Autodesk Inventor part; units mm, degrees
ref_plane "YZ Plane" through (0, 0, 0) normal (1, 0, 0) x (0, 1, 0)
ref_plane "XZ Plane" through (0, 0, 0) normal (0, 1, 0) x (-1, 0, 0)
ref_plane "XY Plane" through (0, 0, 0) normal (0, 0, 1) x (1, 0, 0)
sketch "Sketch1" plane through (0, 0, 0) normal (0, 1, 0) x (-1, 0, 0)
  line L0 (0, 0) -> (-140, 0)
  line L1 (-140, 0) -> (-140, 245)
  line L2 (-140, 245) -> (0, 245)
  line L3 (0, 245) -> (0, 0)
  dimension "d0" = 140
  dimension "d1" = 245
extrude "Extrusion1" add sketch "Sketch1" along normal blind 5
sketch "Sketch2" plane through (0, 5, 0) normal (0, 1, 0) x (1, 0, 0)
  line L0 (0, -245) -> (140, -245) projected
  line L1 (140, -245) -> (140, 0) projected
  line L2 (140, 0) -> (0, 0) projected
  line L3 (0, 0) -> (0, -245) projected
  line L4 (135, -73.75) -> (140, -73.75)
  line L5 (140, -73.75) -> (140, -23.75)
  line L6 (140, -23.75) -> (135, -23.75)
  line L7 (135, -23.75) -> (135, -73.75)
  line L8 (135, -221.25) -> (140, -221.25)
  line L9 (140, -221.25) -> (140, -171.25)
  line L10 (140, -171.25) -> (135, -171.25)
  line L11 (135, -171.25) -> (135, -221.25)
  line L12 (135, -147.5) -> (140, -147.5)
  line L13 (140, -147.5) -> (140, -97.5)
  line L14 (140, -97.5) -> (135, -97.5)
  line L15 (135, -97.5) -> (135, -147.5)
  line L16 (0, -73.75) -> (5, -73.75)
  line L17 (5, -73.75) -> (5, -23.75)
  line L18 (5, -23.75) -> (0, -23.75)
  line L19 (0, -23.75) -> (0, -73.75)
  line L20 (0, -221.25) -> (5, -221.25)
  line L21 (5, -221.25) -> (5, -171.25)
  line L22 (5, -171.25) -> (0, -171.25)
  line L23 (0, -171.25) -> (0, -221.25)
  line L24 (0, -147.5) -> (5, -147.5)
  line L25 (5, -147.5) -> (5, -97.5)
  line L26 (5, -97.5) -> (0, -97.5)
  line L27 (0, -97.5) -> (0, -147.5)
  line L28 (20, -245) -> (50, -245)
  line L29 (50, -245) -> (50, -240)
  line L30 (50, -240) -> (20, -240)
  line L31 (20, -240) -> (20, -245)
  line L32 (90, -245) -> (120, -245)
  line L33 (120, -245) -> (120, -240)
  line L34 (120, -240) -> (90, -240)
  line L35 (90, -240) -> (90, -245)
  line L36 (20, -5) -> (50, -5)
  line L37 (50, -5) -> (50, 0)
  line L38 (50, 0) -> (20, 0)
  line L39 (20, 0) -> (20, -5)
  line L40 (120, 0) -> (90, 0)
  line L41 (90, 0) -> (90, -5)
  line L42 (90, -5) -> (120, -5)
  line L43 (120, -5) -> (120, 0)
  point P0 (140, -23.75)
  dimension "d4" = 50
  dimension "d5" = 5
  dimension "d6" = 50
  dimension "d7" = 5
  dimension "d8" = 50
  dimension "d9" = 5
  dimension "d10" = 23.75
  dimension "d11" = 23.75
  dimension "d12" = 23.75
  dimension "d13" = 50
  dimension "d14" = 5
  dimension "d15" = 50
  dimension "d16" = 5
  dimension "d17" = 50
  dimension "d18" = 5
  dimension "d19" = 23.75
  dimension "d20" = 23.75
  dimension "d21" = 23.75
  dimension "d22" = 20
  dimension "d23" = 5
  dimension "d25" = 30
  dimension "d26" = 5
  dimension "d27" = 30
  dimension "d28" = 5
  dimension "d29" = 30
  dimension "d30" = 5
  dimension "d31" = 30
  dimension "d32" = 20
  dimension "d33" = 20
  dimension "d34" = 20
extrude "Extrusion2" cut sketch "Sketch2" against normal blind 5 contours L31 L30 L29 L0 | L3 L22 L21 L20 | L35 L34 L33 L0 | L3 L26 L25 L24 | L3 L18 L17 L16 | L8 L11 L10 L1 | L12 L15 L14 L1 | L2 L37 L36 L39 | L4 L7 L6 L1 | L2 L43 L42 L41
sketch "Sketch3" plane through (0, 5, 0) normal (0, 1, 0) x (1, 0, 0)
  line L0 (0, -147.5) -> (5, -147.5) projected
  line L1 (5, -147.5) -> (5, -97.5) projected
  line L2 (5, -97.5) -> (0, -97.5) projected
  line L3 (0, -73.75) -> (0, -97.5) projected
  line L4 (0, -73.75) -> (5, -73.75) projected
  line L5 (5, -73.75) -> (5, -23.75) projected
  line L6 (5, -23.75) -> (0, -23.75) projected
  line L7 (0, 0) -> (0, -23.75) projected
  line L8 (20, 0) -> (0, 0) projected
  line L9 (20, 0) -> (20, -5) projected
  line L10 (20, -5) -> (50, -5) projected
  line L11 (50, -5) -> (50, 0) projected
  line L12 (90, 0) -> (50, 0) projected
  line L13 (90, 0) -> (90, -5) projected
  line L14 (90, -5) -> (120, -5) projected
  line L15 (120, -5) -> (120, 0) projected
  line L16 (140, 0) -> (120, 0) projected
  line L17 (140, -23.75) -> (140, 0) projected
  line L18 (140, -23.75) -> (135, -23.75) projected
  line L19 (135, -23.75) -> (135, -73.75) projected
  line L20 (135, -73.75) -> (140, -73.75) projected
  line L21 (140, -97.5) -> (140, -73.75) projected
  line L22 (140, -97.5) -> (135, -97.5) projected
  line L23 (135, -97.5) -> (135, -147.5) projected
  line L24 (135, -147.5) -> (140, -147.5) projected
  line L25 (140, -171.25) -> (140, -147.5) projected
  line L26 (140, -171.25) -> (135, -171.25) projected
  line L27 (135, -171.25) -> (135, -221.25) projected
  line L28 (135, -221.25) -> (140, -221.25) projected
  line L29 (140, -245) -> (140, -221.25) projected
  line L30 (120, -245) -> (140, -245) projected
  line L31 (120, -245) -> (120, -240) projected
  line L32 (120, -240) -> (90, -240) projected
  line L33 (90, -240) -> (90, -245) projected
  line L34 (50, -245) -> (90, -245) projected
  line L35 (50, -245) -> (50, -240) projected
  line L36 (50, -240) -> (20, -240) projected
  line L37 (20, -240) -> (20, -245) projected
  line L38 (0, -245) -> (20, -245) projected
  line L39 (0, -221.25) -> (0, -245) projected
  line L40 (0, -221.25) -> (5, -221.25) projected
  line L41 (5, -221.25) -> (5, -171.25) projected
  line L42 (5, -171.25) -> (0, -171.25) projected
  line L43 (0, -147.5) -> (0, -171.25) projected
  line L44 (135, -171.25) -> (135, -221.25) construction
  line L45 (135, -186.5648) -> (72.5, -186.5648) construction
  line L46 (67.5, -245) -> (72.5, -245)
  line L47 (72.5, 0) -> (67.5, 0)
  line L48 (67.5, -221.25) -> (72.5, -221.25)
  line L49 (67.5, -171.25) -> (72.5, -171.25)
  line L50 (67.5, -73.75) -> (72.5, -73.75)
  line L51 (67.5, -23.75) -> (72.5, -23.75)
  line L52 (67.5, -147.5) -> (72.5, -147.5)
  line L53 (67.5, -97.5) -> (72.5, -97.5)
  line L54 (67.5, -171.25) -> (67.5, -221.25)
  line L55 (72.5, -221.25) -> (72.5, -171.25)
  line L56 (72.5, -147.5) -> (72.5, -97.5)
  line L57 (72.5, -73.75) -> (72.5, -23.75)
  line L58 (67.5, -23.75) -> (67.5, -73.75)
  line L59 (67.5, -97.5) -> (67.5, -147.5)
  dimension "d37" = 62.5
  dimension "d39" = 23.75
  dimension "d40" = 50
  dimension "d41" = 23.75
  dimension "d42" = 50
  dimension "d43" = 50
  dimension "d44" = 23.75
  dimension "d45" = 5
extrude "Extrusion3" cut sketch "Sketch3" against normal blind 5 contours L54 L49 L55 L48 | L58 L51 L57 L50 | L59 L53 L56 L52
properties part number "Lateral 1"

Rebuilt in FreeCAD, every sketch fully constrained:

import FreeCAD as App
import Part
import Sketcher
from FreeCAD import Vector
Q = App.Units.Quantity

doc = App.newDocument("Part")
body = doc.addObject("PartDesign::Body", "Body")

sketch1 = body.newObject("Sketcher::SketchObject", "Sketch")
sketch1.AttachmentSupport = (doc.getObject("XZ_Plane"), [""])
sketch1.MapMode = "FlatFace"
sketch1.addGeometry(Part.LineSegment(Vector(140, 0, 0), Vector(0, 0, 0)), False)
sketch1.addGeometry(Part.LineSegment(Vector(0, 0, 0), Vector(0, 245, 0)), False)
sketch1.addGeometry(Part.LineSegment(Vector(0, 245, 0), Vector(140, 245, 0)), False)
sketch1.addGeometry(Part.LineSegment(Vector(140, 245, 0), Vector(140, 0, 0)), False)
sketch1.addConstraint(Sketcher.Constraint("Coincident", 0, 2, 1, 1))
sketch1.addConstraint(Sketcher.Constraint("Coincident", 1, 2, 2, 1))
sketch1.addConstraint(Sketcher.Constraint("Coincident", 2, 2, 3, 1))
sketch1.addConstraint(Sketcher.Constraint("Coincident", 3, 2, 0, 1))
sketch1.addConstraint(Sketcher.Constraint("Horizontal", 0))
sketch1.addConstraint(Sketcher.Constraint("Vertical", 1))
sketch1.addConstraint(Sketcher.Constraint("Horizontal", 2))
sketch1.addConstraint(Sketcher.Constraint("Vertical", 3))
sketch1.addConstraint(Sketcher.Constraint("Coincident", 0, 2, -1, 1))
sketch1.addConstraint(Sketcher.Constraint("DistanceX", 0, 2, 0, 1, Q("140 mm")))
sketch1.addConstraint(Sketcher.Constraint("DistanceY", 1, 1, 1, 2, Q("245 mm")))
pad1 = body.newObject("PartDesign::Pad", "Pad")
pad1.Profile = sketch1
pad1.Length = 5
pad1.Reversed = True

sketch2 = body.newObject("Sketcher::SketchObject", "Sketch001")
sketch2.AttachmentSupport = (doc.getObject("XZ_Plane"), [""])
sketch2.MapMode = "FlatFace"
sketch2.AttachmentOffset = App.Placement(Vector(0, 0, -5), App.Rotation())
sketch2.addGeometry(Part.LineSegment(Vector(20, 240, 0), Vector(20, 245, 0)), False)
sketch2.addGeometry(Part.LineSegment(Vector(20, 245, 0), Vector(50, 245, 0)), False)
sketch2.addGeometry(Part.LineSegment(Vector(50, 245, 0), Vector(50, 240, 0)), False)
sketch2.addGeometry(Part.LineSegment(Vector(50, 240, 0), Vector(20, 240, 0)), False)
sketch2.addGeometry(Part.LineSegment(Vector(0, 171, 0), Vector(0, 221, 0)), False)
sketch2.addGeometry(Part.LineSegment(Vector(0, 221, 0), Vector(5, 221, 0)), False)
sketch2.addGeometry(Part.LineSegment(Vector(5, 221, 0), Vector(5, 171, 0)), False)
sketch2.addGeometry(Part.LineSegment(Vector(5, 171, 0), Vector(0, 171, 0)), False)
sketch2.addGeometry(Part.LineSegment(Vector(90, 240, 0), Vector(90, 245, 0)), False)
sketch2.addGeometry(Part.LineSegment(Vector(90, 245, 0), Vector(120, 245, 0)), False)
sketch2.addGeometry(Part.LineSegment(Vector(120, 245, 0), Vector(120, 240, 0)), False)
sketch2.addGeometry(Part.LineSegment(Vector(120, 240, 0), Vector(90, 240, 0)), False)
sketch2.addGeometry(Part.LineSegment(Vector(0, 98, 0), Vector(0, 148, 0)), False)
sketch2.addGeometry(Part.LineSegment(Vector(0, 148, 0), Vector(5, 148, 0)), False)
sketch2.addGeometry(Part.LineSegment(Vector(5, 148, 0), Vector(5, 98, 0)), False)
sketch2.addGeometry(Part.LineSegment(Vector(5, 98, 0), Vector(0, 98, 0)), False)
sketch2.addGeometry(Part.LineSegment(Vector(0, 24, 0), Vector(0, 74, 0)), False)
sketch2.addGeometry(Part.LineSegment(Vector(0, 74, 0), Vector(5, 74, 0)), False)
sketch2.addGeometry(Part.LineSegment(Vector(5, 74, 0), Vector(5, 24, 0)), False)
sketch2.addGeometry(Part.LineSegment(Vector(5, 24, 0), Vector(0, 24, 0)), False)
sketch2.addGeometry(Part.LineSegment(Vector(135, 221, 0), Vector(140, 221, 0)), False)
sketch2.addGeometry(Part.LineSegment(Vector(140, 221, 0), Vector(140, 171, 0)), False)
sketch2.addGeometry(Part.LineSegment(Vector(140, 171, 0), Vector(135, 171, 0)), False)
sketch2.addGeometry(Part.LineSegment(Vector(135, 171, 0), Vector(135, 221, 0)), False)
sketch2.addGeometry(Part.LineSegment(Vector(135, 148, 0), Vector(140, 148, 0)), False)
sketch2.addGeometry(Part.LineSegment(Vector(140, 148, 0), Vector(140, 98, 0)), False)
sketch2.addGeometry(Part.LineSegment(Vector(140, 98, 0), Vector(135, 98, 0)), False)
sketch2.addGeometry(Part.LineSegment(Vector(135, 98, 0), Vector(135, 148, 0)), False)
sketch2.addGeometry(Part.LineSegment(Vector(50, 0, 0), Vector(20, 0, 0)), False)
sketch2.addGeometry(Part.LineSegment(Vector(20, 0, 0), Vector(20, 5, 0)), False)
sketch2.addGeometry(Part.LineSegment(Vector(20, 5, 0), Vector(50, 5, 0)), False)
sketch2.addGeometry(Part.LineSegment(Vector(50, 5, 0), Vector(50, 0, 0)), False)
sketch2.addGeometry(Part.LineSegment(Vector(135, 74, 0), Vector(140, 74, 0)), False)
sketch2.addGeometry(Part.LineSegment(Vector(140, 74, 0), Vector(140, 24, 0)), False)
sketch2.addGeometry(Part.LineSegment(Vector(140, 24, 0), Vector(135, 24, 0)), False)
sketch2.addGeometry(Part.LineSegment(Vector(135, 24, 0), Vector(135, 74, 0)), False)
sketch2.addGeometry(Part.LineSegment(Vector(120, 0, 0), Vector(90, 0, 0)), False)
sketch2.addGeometry(Part.LineSegment(Vector(90, 0, 0), Vector(90, 5, 0)), False)
sketch2.addGeometry(Part.LineSegment(Vector(90, 5, 0), Vector(120, 5, 0)), False)
sketch2.addGeometry(Part.LineSegment(Vector(120, 5, 0), Vector(120, 0, 0)), False)
sketch2.addConstraint(Sketcher.Constraint("Coincident", 0, 2, 1, 1))
sketch2.addConstraint(Sketcher.Constraint("Coincident", 1, 2, 2, 1))
sketch2.addConstraint(Sketcher.Constraint("Coincident", 2, 2, 3, 1))
sketch2.addConstraint(Sketcher.Constraint("Coincident", 3, 2, 0, 1))
sketch2.addConstraint(Sketcher.Constraint("Coincident", 4, 2, 5, 1))
sketch2.addConstraint(Sketcher.Constraint("Coincident", 5, 2, 6, 1))
sketch2.addConstraint(Sketcher.Constraint("Coincident", 6, 2, 7, 1))
sketch2.addConstraint(Sketcher.Constraint("Coincident", 7, 2, 4, 1))
sketch2.addConstraint(Sketcher.Constraint("Coincident", 8, 2, 9, 1))
sketch2.addConstraint(Sketcher.Constraint("Coincident", 9, 2, 10, 1))
sketch2.addConstraint(Sketcher.Constraint("Coincident", 10, 2, 11, 1))
sketch2.addConstraint(Sketcher.Constraint("Coincident", 11, 2, 8, 1))
sketch2.addConstraint(Sketcher.Constraint("Coincident", 12, 2, 13, 1))
sketch2.addConstraint(Sketcher.Constraint("Coincident", 13, 2, 14, 1))
sketch2.addConstraint(Sketcher.Constraint("Coincident", 14, 2, 15, 1))
sketch2.addConstraint(Sketcher.Constraint("Coincident", 15, 2, 12, 1))
sketch2.addConstraint(Sketcher.Constraint("Coincident", 16, 2, 17, 1))
sketch2.addConstraint(Sketcher.Constraint("Coincident", 17, 2, 18, 1))
sketch2.addConstraint(Sketcher.Constraint("Coincident", 18, 2, 19, 1))
sketch2.addConstraint(Sketcher.Constraint("Coincident", 19, 2, 16, 1))
sketch2.addConstraint(Sketcher.Constraint("Coincident", 20, 2, 21, 1))
sketch2.addConstraint(Sketcher.Constraint("Coincident", 21, 2, 22, 1))
sketch2.addConstraint(Sketcher.Constraint("Coincident", 22, 2, 23, 1))
sketch2.addConstraint(Sketcher.Constraint("Coincident", 23, 2, 20, 1))
sketch2.addConstraint(Sketcher.Constraint("Coincident", 24, 2, 25, 1))
sketch2.addConstraint(Sketcher.Constraint("Coincident", 25, 2, 26, 1))
sketch2.addConstraint(Sketcher.Constraint("Coincident", 26, 2, 27, 1))
sketch2.addConstraint(Sketcher.Constraint("Coincident", 27, 2, 24, 1))
sketch2.addConstraint(Sketcher.Constraint("Coincident", 28, 2, 29, 1))
sketch2.addConstraint(Sketcher.Constraint("Coincident", 29, 2, 30, 1))
sketch2.addConstraint(Sketcher.Constraint("Coincident", 30, 2, 31, 1))
sketch2.addConstraint(Sketcher.Constraint("Coincident", 31, 2, 28, 1))
sketch2.addConstraint(Sketcher.Constraint("Coincident", 32, 2, 33, 1))
sketch2.addConstraint(Sketcher.Constraint("Coincident", 33, 2, 34, 1))
sketch2.addConstraint(Sketcher.Constraint("Coincident", 34, 2, 35, 1))
sketch2.addConstraint(Sketcher.Constraint("Coincident", 35, 2, 32, 1))
sketch2.addConstraint(Sketcher.Constraint("Coincident", 36, 2, 37, 1))
sketch2.addConstraint(Sketcher.Constraint("Coincident", 37, 2, 38, 1))
sketch2.addConstraint(Sketcher.Constraint("Coincident", 38, 2, 39, 1))
sketch2.addConstraint(Sketcher.Constraint("Coincident", 39, 2, 36, 1))
sketch2.addConstraint(Sketcher.Constraint("Vertical", 0))
sketch2.addConstraint(Sketcher.Constraint("Horizontal", 1))
sketch2.addConstraint(Sketcher.Constraint("Vertical", 2))
sketch2.addConstraint(Sketcher.Constraint("Horizontal", 3))
sketch2.addConstraint(Sketcher.Constraint("Vertical", 4))
sketch2.addConstraint(Sketcher.Constraint("Horizontal", 5))
sketch2.addConstraint(Sketcher.Constraint("Vertical", 6))
sketch2.addConstraint(Sketcher.Constraint("Horizontal", 7))
sketch2.addConstraint(Sketcher.Constraint("Vertical", 8))
sketch2.addConstraint(Sketcher.Constraint("Horizontal", 9))
sketch2.addConstraint(Sketcher.Constraint("Vertical", 10))
sketch2.addConstraint(Sketcher.Constraint("Horizontal", 11))
sketch2.addConstraint(Sketcher.Constraint("Vertical", 12))
sketch2.addConstraint(Sketcher.Constraint("Horizontal", 13))
sketch2.addConstraint(Sketcher.Constraint("Vertical", 14))
sketch2.addConstraint(Sketcher.Constraint("Horizontal", 15))
sketch2.addConstraint(Sketcher.Constraint("Vertical", 16))
sketch2.addConstraint(Sketcher.Constraint("Horizontal", 17))
sketch2.addConstraint(Sketcher.Constraint("Vertical", 18))
sketch2.addConstraint(Sketcher.Constraint("Horizontal", 19))
sketch2.addConstraint(Sketcher.Constraint("Horizontal", 20))
sketch2.addConstraint(Sketcher.Constraint("Vertical", 21))
sketch2.addConstraint(Sketcher.Constraint("Horizontal", 22))
sketch2.addConstraint(Sketcher.Constraint("Vertical", 23))
sketch2.addConstraint(Sketcher.Constraint("Horizontal", 24))
sketch2.addConstraint(Sketcher.Constraint("Vertical", 25))
sketch2.addConstraint(Sketcher.Constraint("Horizontal", 26))
sketch2.addConstraint(Sketcher.Constraint("Vertical", 27))
sketch2.addConstraint(Sketcher.Constraint("Horizontal", 28))
sketch2.addConstraint(Sketcher.Constraint("Vertical", 29))
sketch2.addConstraint(Sketcher.Constraint("Horizontal", 30))
sketch2.addConstraint(Sketcher.Constraint("Vertical", 31))
sketch2.addConstraint(Sketcher.Constraint("Horizontal", 32))
sketch2.addConstraint(Sketcher.Constraint("Vertical", 33))
sketch2.addConstraint(Sketcher.Constraint("Horizontal", 34))
sketch2.addConstraint(Sketcher.Constraint("Vertical", 35))
sketch2.addConstraint(Sketcher.Constraint("Horizontal", 36))
sketch2.addConstraint(Sketcher.Constraint("Vertical", 37))
sketch2.addConstraint(Sketcher.Constraint("Horizontal", 38))
sketch2.addConstraint(Sketcher.Constraint("Vertical", 39))
sketch2.addConstraint(Sketcher.Constraint("PointOnObject", 4, 2, -2))
sketch2.addConstraint(Sketcher.Constraint("PointOnObject", 12, 2, -2))
sketch2.addConstraint(Sketcher.Constraint("PointOnObject", 16, 2, -2))
sketch2.addConstraint(Sketcher.Constraint("PointOnObject", 28, 2, -1))
sketch2.addConstraint(Sketcher.Constraint("PointOnObject", 36, 2, -1))
sketch2.addConstraint(Sketcher.Constraint("Horizontal", 1, 2, 8, 2))
sketch2.addConstraint(Sketcher.Constraint("Horizontal", 3, 2, 10, 2))
sketch2.addConstraint(Sketcher.Constraint("Horizontal", 5, 2, 20, 2))
sketch2.addConstraint(Sketcher.Constraint("Horizontal", 7, 2, 21, 2))
sketch2.addConstraint(Sketcher.Constraint("Horizontal", 13, 2, 24, 2))
sketch2.addConstraint(Sketcher.Constraint("Horizontal", 15, 2, 25, 2))
sketch2.addConstraint(Sketcher.Constraint("Horizontal", 17, 2, 32, 2))
sketch2.addConstraint(Sketcher.Constraint("Horizontal", 19, 2, 33, 2))
sketch2.addConstraint(Sketcher.Constraint("Horizontal", 30, 2, 37, 2))
sketch2.addConstraint(Sketcher.Constraint("Vertical", 6, 2, 13, 2))
sketch2.addConstraint(Sketcher.Constraint("Vertical", 14, 2, 17, 2))
sketch2.addConstraint(Sketcher.Constraint("Vertical", 21, 2, 24, 2))
sketch2.addConstraint(Sketcher.Constraint("Vertical", 23, 2, 26, 2))
sketch2.addConstraint(Sketcher.Constraint("Vertical", 3, 2, 28, 2))
sketch2.addConstraint(Sketcher.Constraint("Vertical", 2, 2, 30, 2))
sketch2.addConstraint(Sketcher.Constraint("Vertical", 25, 2, 32, 2))
sketch2.addConstraint(Sketcher.Constraint("Vertical", 27, 2, 34, 2))
sketch2.addConstraint(Sketcher.Constraint("Vertical", 11, 2, 36, 2))
sketch2.addConstraint(Sketcher.Constraint("Vertical", 10, 2, 38, 2))
sketch2.addConstraint(Sketcher.Constraint("Equal", 3, 9))
sketch2.addConstraint(Sketcher.Constraint("Equal", 19, 20))
sketch2.addConstraint(Sketcher.Constraint("Equal", 34, 0))
sketch2.addConstraint(Sketcher.Constraint("Equal", 6, 12))
sketch2.addConstraint(Sketcher.Constraint("Equal", 14, 16))
sketch2.addConstraint(Sketcher.Constraint("Equal", 10, 29))
sketch2.addConstraint(Sketcher.Constraint("DistanceX", 1, 1, 1, 2, Q("30 mm")))
sketch2.addConstraint(Sketcher.Constraint("DistanceX", 5, 1, 5, 2, Q("5 mm")))
sketch2.addConstraint(Sketcher.Constraint("DistanceY", 4, 1, 4, 2, Q("50 mm")))
sketch2.addConstraint(Sketcher.Constraint("DistanceX", -1, 1, 0, 2, Q("20 mm")))
sketch2.addConstraint(Sketcher.Constraint("DistanceX", 10, 2, 20, 2, Q("20 mm")))
sketch2.addConstraint(Sketcher.Constraint("DistanceY", -1, 1, 18, 2, Q("23.75 mm")))
sketch2.addConstraint(Sketcher.Constraint("DistanceY", 4, 2, 0, 2, Q("23.75 mm")))
sketch2.addConstraint(Sketcher.Constraint("DistanceY", 12, 2, 7, 2, Q("23.75 mm")))
sketch2.addConstraint(Sketcher.Constraint("DistanceY", 16, 2, 15, 2, Q("23.75 mm")))
sketch2.addConstraint(Sketcher.Constraint("DistanceX", -1, 1, 8, 2, Q("90 mm")))
pocket1 = body.newObject("PartDesign::Pocket", "Pocket")
pocket1.Profile = sketch2
pocket1.Length = 5
pocket1.Reversed = True

sketch3 = body.newObject("Sketcher::SketchObject", "Sketch002")
sketch3.AttachmentSupport = (doc.getObject("XZ_Plane"), [""])
sketch3.MapMode = "FlatFace"
sketch3.AttachmentOffset = App.Placement(Vector(0, 0, -5), App.Rotation())
sketch3.addGeometry(Part.LineSegment(Vector(68, 171, 0), Vector(68, 221, 0)), False)
sketch3.addGeometry(Part.LineSegment(Vector(68, 221, 0), Vector(72, 221, 0)), False)
sketch3.addGeometry(Part.LineSegment(Vector(72, 221, 0), Vector(72, 171, 0)), False)
sketch3.addGeometry(Part.LineSegment(Vector(72, 171, 0), Vector(68, 171, 0)), False)
sketch3.addGeometry(Part.LineSegment(Vector(68, 24, 0), Vector(68, 74, 0)), False)
sketch3.addGeometry(Part.LineSegment(Vector(68, 74, 0), Vector(72, 74, 0)), False)
sketch3.addGeometry(Part.LineSegment(Vector(72, 74, 0), Vector(72, 24, 0)), False)
sketch3.addGeometry(Part.LineSegment(Vector(72, 24, 0), Vector(68, 24, 0)), False)
sketch3.addGeometry(Part.LineSegment(Vector(68, 98, 0), Vector(68, 148, 0)), False)
sketch3.addGeometry(Part.LineSegment(Vector(68, 148, 0), Vector(72, 148, 0)), False)
sketch3.addGeometry(Part.LineSegment(Vector(72, 148, 0), Vector(72, 98, 0)), False)
sketch3.addGeometry(Part.LineSegment(Vector(72, 98, 0), Vector(68, 98, 0)), False)
sketch3.addConstraint(Sketcher.Constraint("Coincident", 0, 2, 1, 1))
sketch3.addConstraint(Sketcher.Constraint("Coincident", 1, 2, 2, 1))
sketch3.addConstraint(Sketcher.Constraint("Coincident", 2, 2, 3, 1))
sketch3.addConstraint(Sketcher.Constraint("Coincident", 3, 2, 0, 1))
sketch3.addConstraint(Sketcher.Constraint("Coincident", 4, 2, 5, 1))
sketch3.addConstraint(Sketcher.Constraint("Coincident", 5, 2, 6, 1))
sketch3.addConstraint(Sketcher.Constraint("Coincident", 6, 2, 7, 1))
sketch3.addConstraint(Sketcher.Constraint("Coincident", 7, 2, 4, 1))
sketch3.addConstraint(Sketcher.Constraint("Coincident", 8, 2, 9, 1))
sketch3.addConstraint(Sketcher.Constraint("Coincident", 9, 2, 10, 1))
sketch3.addConstraint(Sketcher.Constraint("Coincident", 10, 2, 11, 1))
sketch3.addConstraint(Sketcher.Constraint("Coincident", 11, 2, 8, 1))
sketch3.addConstraint(Sketcher.Constraint("Vertical", 0))
sketch3.addConstraint(Sketcher.Constraint("Horizontal", 1))
sketch3.addConstraint(Sketcher.Constraint("Vertical", 2))
sketch3.addConstraint(Sketcher.Constraint("Horizontal", 3))
sketch3.addConstraint(Sketcher.Constraint("Vertical", 4))
sketch3.addConstraint(Sketcher.Constraint("Horizontal", 5))
sketch3.addConstraint(Sketcher.Constraint("Vertical", 6))
sketch3.addConstraint(Sketcher.Constraint("Horizontal", 7))
sketch3.addConstraint(Sketcher.Constraint("Vertical", 8))
sketch3.addConstraint(Sketcher.Constraint("Horizontal", 9))
sketch3.addConstraint(Sketcher.Constraint("Vertical", 10))
sketch3.addConstraint(Sketcher.Constraint("Horizontal", 11))
sketch3.addConstraint(Sketcher.Constraint("Vertical", 3, 2, 4, 2))
sketch3.addConstraint(Sketcher.Constraint("Vertical", 2, 2, 5, 2))
sketch3.addConstraint(Sketcher.Constraint("Vertical", 7, 2, 8, 2))
sketch3.addConstraint(Sketcher.Constraint("Vertical", 6, 2, 9, 2))
sketch3.addConstraint(Sketcher.Constraint("Equal", 2, 4))
sketch3.addConstraint(Sketcher.Constraint("Equal", 6, 8))
sketch3.addConstraint(Sketcher.Constraint("DistanceX", 1, 1, 1, 2, Q("5 mm")))
sketch3.addConstraint(Sketcher.Constraint("DistanceY", 0, 1, 0, 2, Q("50 mm")))
sketch3.addConstraint(Sketcher.Constraint("DistanceY", -1, 1, 6, 2, Q("23.75 mm")))
sketch3.addConstraint(Sketcher.Constraint("DistanceY", 8, 2, 3, 2, Q("23.75 mm")))
sketch3.addConstraint(Sketcher.Constraint("DistanceY", 5, 2, 10, 2, Q("23.75 mm")))
sketch3.addConstraint(Sketcher.Constraint("DistanceX", -1, 1, 0, 2, Q("67.5 mm")))
pocket2 = body.newObject("PartDesign::Pocket", "Pocket001")
pocket2.Profile = sketch3
pocket2.Length = 5
pocket2.Reversed = True

doc.recompute()
